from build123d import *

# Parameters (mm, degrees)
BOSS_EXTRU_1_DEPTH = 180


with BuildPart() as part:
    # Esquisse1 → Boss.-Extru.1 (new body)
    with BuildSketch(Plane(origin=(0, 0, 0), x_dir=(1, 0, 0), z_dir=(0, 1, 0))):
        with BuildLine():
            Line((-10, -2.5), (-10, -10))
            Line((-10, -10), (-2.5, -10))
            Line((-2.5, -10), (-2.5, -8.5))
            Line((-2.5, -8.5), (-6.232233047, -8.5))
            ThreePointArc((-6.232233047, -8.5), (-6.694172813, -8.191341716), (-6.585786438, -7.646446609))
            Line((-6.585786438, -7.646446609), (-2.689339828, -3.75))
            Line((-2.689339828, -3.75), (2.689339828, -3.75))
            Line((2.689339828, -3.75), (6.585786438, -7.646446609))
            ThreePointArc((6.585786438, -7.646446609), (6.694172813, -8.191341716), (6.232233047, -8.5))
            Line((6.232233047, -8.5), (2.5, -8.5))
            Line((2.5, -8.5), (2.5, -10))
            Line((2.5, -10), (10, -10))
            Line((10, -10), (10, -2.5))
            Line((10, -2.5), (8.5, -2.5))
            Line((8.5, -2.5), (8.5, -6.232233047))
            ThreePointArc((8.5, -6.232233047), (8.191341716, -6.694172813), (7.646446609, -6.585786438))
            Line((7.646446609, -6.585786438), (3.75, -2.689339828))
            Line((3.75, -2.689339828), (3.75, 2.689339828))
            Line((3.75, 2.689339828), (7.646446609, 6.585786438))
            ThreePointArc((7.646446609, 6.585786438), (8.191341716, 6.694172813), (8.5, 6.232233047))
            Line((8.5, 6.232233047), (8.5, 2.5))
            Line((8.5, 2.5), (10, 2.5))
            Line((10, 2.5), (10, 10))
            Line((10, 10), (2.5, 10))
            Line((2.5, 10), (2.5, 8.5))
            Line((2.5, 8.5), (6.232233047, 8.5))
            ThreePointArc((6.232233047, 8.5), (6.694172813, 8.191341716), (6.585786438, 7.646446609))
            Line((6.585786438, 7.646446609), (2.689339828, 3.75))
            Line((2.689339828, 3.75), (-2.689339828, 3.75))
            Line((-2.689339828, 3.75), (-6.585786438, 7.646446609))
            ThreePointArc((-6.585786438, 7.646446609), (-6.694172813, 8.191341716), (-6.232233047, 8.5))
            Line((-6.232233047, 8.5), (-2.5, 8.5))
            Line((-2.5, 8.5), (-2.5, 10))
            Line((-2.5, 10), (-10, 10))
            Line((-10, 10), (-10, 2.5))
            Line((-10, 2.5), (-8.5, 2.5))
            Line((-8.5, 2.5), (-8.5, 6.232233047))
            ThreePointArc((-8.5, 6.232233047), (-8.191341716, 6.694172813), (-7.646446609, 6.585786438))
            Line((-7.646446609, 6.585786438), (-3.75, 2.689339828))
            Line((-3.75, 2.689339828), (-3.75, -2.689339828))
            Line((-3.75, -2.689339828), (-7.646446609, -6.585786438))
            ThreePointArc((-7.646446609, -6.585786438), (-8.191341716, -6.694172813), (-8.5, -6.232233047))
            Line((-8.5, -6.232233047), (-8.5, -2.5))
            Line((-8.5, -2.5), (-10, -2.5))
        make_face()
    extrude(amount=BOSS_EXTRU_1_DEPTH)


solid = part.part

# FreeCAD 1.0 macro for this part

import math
import FreeCAD as App
import Part
import Sketcher
from FreeCAD import Vector
Q = App.Units.Quantity

doc = App.newDocument("Part")
body = doc.addObject("PartDesign::Body", "Body")

# Sketch on XZ plane
sketch1 = doc.addObject("Sketcher::SketchObject", "Sketch")
body.addObject(sketch1)
sketch1.AttachmentSupport = (doc.XZ_Plane, [""])
sketch1.MapMode = "FlatFace"
sketch1.addGeometry(Part.LineSegment(Vector(-10, 2.5, 0), Vector(-10, 10, 0)), False)
sketch1.addGeometry(Part.LineSegment(Vector(-10, 10, 0), Vector(-2.5, 10, 0)), False)
sketch1.addGeometry(Part.LineSegment(Vector(-2.5, 10, 0), Vector(-2.5, 8.5, 0)), False)
sketch1.addGeometry(Part.LineSegment(Vector(-2.5, 8.5, 0), Vector(-6.2, 8.5, 0)), False)
sketch1.addGeometry(Part.ArcOfCircle(Part.Circle(Vector(-6.2, 8, 0), Vector(0, 0, 1), 0.5), math.radians(90), math.radians(225)), False)
sketch1.addGeometry(Part.LineSegment(Vector(-6.6, 7.6, 0), Vector(-2.7, 3.8, 0)), False)
sketch1.addGeometry(Part.LineSegment(Vector(-2.7, 3.8, 0), Vector(2.7, 3.8, 0)), False)
sketch1.addGeometry(Part.LineSegment(Vector(2.7, 3.8, 0), Vector(6.6, 7.6, 0)), False)
sketch1.addGeometry(Part.ArcOfCircle(Part.Circle(Vector(6.2, 8, 0), Vector(0, 0, 1), 0.5), math.radians(-45), math.radians(90)), False)
sketch1.addGeometry(Part.LineSegment(Vector(6.2, 8.5, 0), Vector(2.5, 8.5, 0)), False)
sketch1.addGeometry(Part.LineSegment(Vector(2.5, 8.5, 0), Vector(2.5, 10, 0)), False)
sketch1.addGeometry(Part.LineSegment(Vector(2.5, 10, 0), Vector(10, 10, 0)), False)
sketch1.addGeometry(Part.LineSegment(Vector(10, 10, 0), Vector(10, 2.5, 0)), False)
sketch1.addGeometry(Part.LineSegment(Vector(10, 2.5, 0), Vector(8.5, 2.5, 0)), False)
sketch1.addGeometry(Part.LineSegment(Vector(8.5, 2.5, 0), Vector(8.5, 6.2, 0)), False)
sketch1.addGeometry(Part.ArcOfCircle(Part.Circle(Vector(8, 6.2, 0), Vector(0, 0, 1), 0.5), math.radians(0), math.radians(135)), False)
sketch1.addGeometry(Part.LineSegment(Vector(7.6, 6.6, 0), Vector(3.8, 2.7, 0)), False)
sketch1.addGeometry(Part.LineSegment(Vector(3.8, 2.7, 0), Vector(3.8, -2.7, 0)), False)
sketch1.addGeometry(Part.LineSegment(Vector(3.8, -2.7, 0), Vector(7.6, -6.6, 0)), False)
sketch1.addGeometry(Part.ArcOfCircle(Part.Circle(Vector(8, -6.2, 0), Vector(0, 0, 1), 0.5), math.radians(-135), math.radians(0)), False)
sketch1.addGeometry(Part.LineSegment(Vector(8.5, -6.2, 0), Vector(8.5, -2.5, 0)), False)
sketch1.addGeometry(Part.LineSegment(Vector(8.5, -2.5, 0), Vector(10, -2.5, 0)), False)
sketch1.addGeometry(Part.LineSegment(Vector(10, -2.5, 0), Vector(10, -10, 0)), False)
sketch1.addGeometry(Part.LineSegment(Vector(10, -10, 0), Vector(2.5, -10, 0)), False)
sketch1.addGeometry(Part.LineSegment(Vector(2.5, -10, 0), Vector(2.5, -8.5, 0)), False)
sketch1.addGeometry(Part.LineSegment(Vector(2.5, -8.5, 0), Vector(6.2, -8.5, 0)), False)
sketch1.addGeometry(Part.ArcOfCircle(Part.Circle(Vector(6.2, -8, 0), Vector(0, 0, 1), 0.5), math.radians(-90), math.radians(45)), False)
sketch1.addGeometry(Part.LineSegment(Vector(6.6, -7.6, 0), Vector(2.7, -3.8, 0)), False)
sketch1.addGeometry(Part.LineSegment(Vector(2.7, -3.8, 0), Vector(-2.7, -3.8, 0)), False)
sketch1.addGeometry(Part.LineSegment(Vector(-2.7, -3.8, 0), Vector(-6.6, -7.6, 0)), False)
sketch1.addGeometry(Part.ArcOfCircle(Part.Circle(Vector(-6.2, -8, 0), Vector(0, 0, 1), 0.5), math.radians(135), math.radians(270)), False)
sketch1.addGeometry(Part.LineSegment(Vector(-6.2, -8.5, 0), Vector(-2.5, -8.5, 0)), False)
sketch1.addGeometry(Part.LineSegment(Vector(-2.5, -8.5, 0), Vector(-2.5, -10, 0)), False)
sketch1.addGeometry(Part.LineSegment(Vector(-2.5, -10, 0), Vector(-10, -10, 0)), False)
sketch1.addGeometry(Part.LineSegment(Vector(-10, -10, 0), Vector(-10, -2.5, 0)), False)
sketch1.addGeometry(Part.LineSegment(Vector(-10, -2.5, 0), Vector(-8.5, -2.5, 0)), False)
sketch1.addGeometry(Part.LineSegment(Vector(-8.5, -2.5, 0), Vector(-8.5, -6.2, 0)), False)
sketch1.addGeometry(Part.ArcOfCircle(Part.Circle(Vector(-8, -6.2, 0), Vector(0, 0, 1), 0.5), math.radians(-180), math.radians(-45)), False)
sketch1.addGeometry(Part.LineSegment(Vector(-7.6, -6.6, 0), Vector(-3.8, -2.7, 0)), False)
sketch1.addGeometry(Part.LineSegment(Vector(-3.8, -2.7, 0), Vector(-3.8, 2.7, 0)), False)
sketch1.addGeometry(Part.LineSegment(Vector(-3.8, 2.7, 0), Vector(-7.6, 6.6, 0)), False)
sketch1.addGeometry(Part.ArcOfCircle(Part.Circle(Vector(-8, 6.2, 0), Vector(0, 0, 1), 0.5), math.radians(45), math.radians(180)), False)
sketch1.addGeometry(Part.LineSegment(Vector(-8.5, 6.2, 0), Vector(-8.5, 2.5, 0)), False)
sketch1.addGeometry(Part.LineSegment(Vector(-8.5, 2.5, 0), Vector(-10, 2.5, 0)), False)
sketch1.addConstraint(Sketcher.Constraint("Coincident", 0, 2, 1, 1))
sketch1.addConstraint(Sketcher.Constraint("Coincident", 1, 2, 2, 1))
sketch1.addConstraint(Sketcher.Constraint("Coincident", 2, 2, 3, 1))
sketch1.addConstraint(Sketcher.Constraint("Tangent", 3, 2, 4, 1))
sketch1.addConstraint(Sketcher.Constraint("Tangent", 4, 2, 5, 1))
sketch1.addConstraint(Sketcher.Constraint("Coincident", 5, 2, 6, 1))
sketch1.addConstraint(Sketcher.Constraint("Coincident", 6, 2, 7, 1))
sketch1.addConstraint(Sketcher.Constraint("Tangent", 7, 2, 8, 1))
sketch1.addConstraint(Sketcher.Constraint("Tangent", 8, 2, 9, 1))
sketch1.addConstraint(Sketcher.Constraint("Coincident", 9, 2, 10, 1))
sketch1.addConstraint(Sketcher.Constraint("Coincident", 10, 2, 11, 1))
sketch1.addConstraint(Sketcher.Constraint("Coincident", 11, 2, 12, 1))
sketch1.addConstraint(Sketcher.Constraint("Coincident", 12, 2, 13, 1))
sketch1.addConstraint(Sketcher.Constraint("Coincident", 13, 2, 14, 1))
sketch1.addConstraint(Sketcher.Constraint("Tangent", 14, 2, 15, 1))
sketch1.addConstraint(Sketcher.Constraint("Tangent", 15, 2, 16, 1))
sketch1.addConstraint(Sketcher.Constraint("Coincident", 16, 2, 17, 1))
sketch1.addConstraint(Sketcher.Constraint("Coincident", 17, 2, 18, 1))
sketch1.addConstraint(Sketcher.Constraint("Tangent", 18, 2, 19, 1))
sketch1.addConstraint(Sketcher.Constraint("Tangent", 19, 2, 20, 1))
sketch1.addConstraint(Sketcher.Constraint("Coincident", 20, 2, 21, 1))
sketch1.addConstraint(Sketcher.Constraint("Coincident", 21, 2, 22, 1))
sketch1.addConstraint(Sketcher.Constraint("Coincident", 22, 2, 23, 1))
sketch1.addConstraint(Sketcher.Constraint("Coincident", 23, 2, 24, 1))
sketch1.addConstraint(Sketcher.Constraint("Coincident", 24, 2, 25, 1))
sketch1.addConstraint(Sketcher.Constraint("Tangent", 25, 2, 26, 1))
sketch1.addConstraint(Sketcher.Constraint("Tangent", 26, 2, 27, 1))
sketch1.addConstraint(Sketcher.Constraint("Coincident", 27, 2, 28, 1))
sketch1.addConstraint(Sketcher.Constraint("Coincident", 28, 2, 29, 1))
sketch1.addConstraint(Sketcher.Constraint("Tangent", 29, 2, 30, 1))
sketch1.addConstraint(Sketcher.Constraint("Tangent", 30, 2, 31, 1))
sketch1.addConstraint(Sketcher.Constraint("Coincident", 31, 2, 32, 1))
sketch1.addConstraint(Sketcher.Constraint("Coincident", 32, 2, 33, 1))
sketch1.addConstraint(Sketcher.Constraint("Coincident", 33, 2, 34, 1))
sketch1.addConstraint(Sketcher.Constraint("Coincident", 34, 2, 35, 1))
sketch1.addConstraint(Sketcher.Constraint("Coincident", 35, 2, 36, 1))
sketch1.addConstraint(Sketcher.Constraint("Tangent", 36, 2, 37, 1))
sketch1.addConstraint(Sketcher.Constraint("Tangent", 37, 2, 38, 1))
sketch1.addConstraint(Sketcher.Constraint("Coincident", 38, 2, 39, 1))
sketch1.addConstraint(Sketcher.Constraint("Coincident", 39, 2, 40, 1))
sketch1.addConstraint(Sketcher.Constraint("Tangent", 40, 2, 41, 1))
sketch1.addConstraint(Sketcher.Constraint("Tangent", 41, 2, 42, 1))
sketch1.addConstraint(Sketcher.Constraint("Coincident", 42, 2, 43, 1))
sketch1.addConstraint(Sketcher.Constraint("Coincident", 43, 2, 0, 1))
sketch1.addConstraint(Sketcher.Constraint("Vertical", 0))
sketch1.addConstraint(Sketcher.Constraint("Horizontal", 1))
sketch1.addConstraint(Sketcher.Constraint("Vertical", 2))
sketch1.addConstraint(Sketcher.Constraint("Horizontal", 3))
sketch1.addConstraint(Sketcher.Constraint("Horizontal", 6))
sketch1.addConstraint(Sketcher.Constraint("Horizontal", 9))
sketch1.addConstraint(Sketcher.Constraint("Vertical", 10))
sketch1.addConstraint(Sketcher.Constraint("Horizontal", 11))
sketch1.addConstraint(Sketcher.Constraint("Vertical", 12))
sketch1.addConstraint(Sketcher.Constraint("Horizontal", 13))
sketch1.addConstraint(Sketcher.Constraint("Vertical", 14))
sketch1.addConstraint(Sketcher.Constraint("Vertical", 17))
sketch1.addConstraint(Sketcher.Constraint("Vertical", 20))
sketch1.addConstraint(Sketcher.Constraint("Horizontal", 21))
sketch1.addConstraint(Sketcher.Constraint("Vertical", 22))
sketch1.addConstraint(Sketcher.Constraint("Horizontal", 23))
sketch1.addConstraint(Sketcher.Constraint("Vertical", 24))
sketch1.addConstraint(Sketcher.Constraint("Horizontal", 25))
sketch1.addConstraint(Sketcher.Constraint("Horizontal", 28))
sketch1.addConstraint(Sketcher.Constraint("Horizontal", 31))
sketch1.addConstraint(Sketcher.Constraint("Vertical", 32))
sketch1.addConstraint(Sketcher.Constraint("Horizontal", 33))
sketch1.addConstraint(Sketcher.Constraint("Vertical", 34))
sketch1.addConstraint(Sketcher.Constraint("Horizontal", 35))
sketch1.addConstraint(Sketcher.Constraint("Vertical", 36))
sketch1.addConstraint(Sketcher.Constraint("Vertical", 39))
sketch1.addConstraint(Sketcher.Constraint("Vertical", 42))
sketch1.addConstraint(Sketcher.Constraint("Horizontal", 43))
sketch1.addConstraint(Sketcher.Constraint("Equal", 4, 8))
sketch1.addConstraint(Sketcher.Constraint("Equal", 8, 15))
sketch1.addConstraint(Sketcher.Constraint("Equal", 15, 19))
sketch1.addConstraint(Sketcher.Constraint("Equal", 19, 26))
sketch1.addConstraint(Sketcher.Constraint("Equal", 26, 30))
sketch1.addConstraint(Sketcher.Constraint("Equal", 30, 37))
sketch1.addConstraint(Sketcher.Constraint("Equal", 37, 41))
sketch1.addConstraint(Sketcher.Constraint("Symmetric", 4, 3, 26, 3, -1, 1))
sketch1.addConstraint(Sketcher.Constraint("Symmetric", 8, 3, 30, 3, -1, 1))
sketch1.addConstraint(Sketcher.Constraint("Symmetric", 15, 3, 37, 3, -1, 1))
sketch1.addConstraint(Sketcher.Constraint("Symmetric", 19, 3, 41, 3, -1, 1))
sketch1.addConstraint(Sketcher.Constraint("Symmetric", 0, 2, 22, 2, -1, 1))
sketch1.addConstraint(Sketcher.Constraint("Symmetric", 5, 2, 27, 2, -1, 1))
sketch1.addConstraint(Sketcher.Constraint("Symmetric", 10, 2, 32, 2, -1, 1))
sketch1.addConstraint(Sketcher.Constraint("Symmetric", 12, 2, 34, 2, -1, 1))
sketch1.addConstraint(Sketcher.Constraint("Symmetric", 16, 2, 38, 2, -1, 1))
sketch1.addConstraint(Sketcher.Constraint("Symmetric", 4, 3, 8, 3, -2))
sketch1.addConstraint(Sketcher.Constraint("Symmetric", 19, 3, 37, 3, -2))
sketch1.addConstraint(Sketcher.Constraint("Symmetric", 1, 2, 10, 2, -2))
sketch1.addConstraint(Sketcher.Constraint("Symmetric", 21, 2, 34, 2, -2))
sketch1.addConstraint(Sketcher.Constraint("Perpendicular", 5, 7))
sketch1.addConstraint(Sketcher.Constraint("Parallel", 7, 16))
sketch1.addConstraint(Sketcher.Constraint("Perpendicular", 16, 18))
sketch1.addConstraint(Sketcher.Constraint("Perpendicular", 27, 29))
sketch1.addConstraint(Sketcher.Constraint("Perpendicular", 38, 40))
sketch1.addConstraint(Sketcher.Constraint("Horizontal", 4, 2, 7, 2))
sketch1.addConstraint(Sketcher.Constraint("Horizontal", 13, 2, 42, 2))
sketch1.addConstraint(Sketcher.Constraint("Vertical", 10, 2, 23, 2))
sketch1.addConstraint(Sketcher.Constraint("Equal", 33, 0))
sketch1.addConstraint(Sketcher.Constraint("Equal", 43, 2))
sketch1.addConstraint(Sketcher.Constraint("Equal", 31, 14))
sketch1.addConstraint(Sketcher.Constraint("Equal", 28, 17))
sketch1.addConstraint(Sketcher.Constraint("Equal", 7, 16))
sketch1.addConstraint(Sketcher.Constraint("Radius", 4, Q("0.5 mm")))
sketch1.addConstraint(Sketcher.Constraint("DistanceX", 1, 1, 1, 2, Q("7.5 mm")))
sketch1.addConstraint(Sketcher.Constraint("DistanceX", 13, 2, 13, 1, Q("1.5 mm")))
sketch1.addConstraint(Sketcher.Constraint("DistanceY", -1, 1, 4, 3, Q("8 mm")))
sketch1.addConstraint(Sketcher.Constraint("DistanceY", -1, 1, 5, 2, Q("3.75 mm")))
sketch1.addConstraint(Sketcher.Constraint("DistanceX", 6, 1, 6, 2, Q("5.37868 mm")))
pad1 = doc.addObject("PartDesign::Pad", "Pad")
body.addObject(pad1)
pad1.Profile = sketch1
pad1.Length = 180
pad1.Reversed = True

doc.recompute()
